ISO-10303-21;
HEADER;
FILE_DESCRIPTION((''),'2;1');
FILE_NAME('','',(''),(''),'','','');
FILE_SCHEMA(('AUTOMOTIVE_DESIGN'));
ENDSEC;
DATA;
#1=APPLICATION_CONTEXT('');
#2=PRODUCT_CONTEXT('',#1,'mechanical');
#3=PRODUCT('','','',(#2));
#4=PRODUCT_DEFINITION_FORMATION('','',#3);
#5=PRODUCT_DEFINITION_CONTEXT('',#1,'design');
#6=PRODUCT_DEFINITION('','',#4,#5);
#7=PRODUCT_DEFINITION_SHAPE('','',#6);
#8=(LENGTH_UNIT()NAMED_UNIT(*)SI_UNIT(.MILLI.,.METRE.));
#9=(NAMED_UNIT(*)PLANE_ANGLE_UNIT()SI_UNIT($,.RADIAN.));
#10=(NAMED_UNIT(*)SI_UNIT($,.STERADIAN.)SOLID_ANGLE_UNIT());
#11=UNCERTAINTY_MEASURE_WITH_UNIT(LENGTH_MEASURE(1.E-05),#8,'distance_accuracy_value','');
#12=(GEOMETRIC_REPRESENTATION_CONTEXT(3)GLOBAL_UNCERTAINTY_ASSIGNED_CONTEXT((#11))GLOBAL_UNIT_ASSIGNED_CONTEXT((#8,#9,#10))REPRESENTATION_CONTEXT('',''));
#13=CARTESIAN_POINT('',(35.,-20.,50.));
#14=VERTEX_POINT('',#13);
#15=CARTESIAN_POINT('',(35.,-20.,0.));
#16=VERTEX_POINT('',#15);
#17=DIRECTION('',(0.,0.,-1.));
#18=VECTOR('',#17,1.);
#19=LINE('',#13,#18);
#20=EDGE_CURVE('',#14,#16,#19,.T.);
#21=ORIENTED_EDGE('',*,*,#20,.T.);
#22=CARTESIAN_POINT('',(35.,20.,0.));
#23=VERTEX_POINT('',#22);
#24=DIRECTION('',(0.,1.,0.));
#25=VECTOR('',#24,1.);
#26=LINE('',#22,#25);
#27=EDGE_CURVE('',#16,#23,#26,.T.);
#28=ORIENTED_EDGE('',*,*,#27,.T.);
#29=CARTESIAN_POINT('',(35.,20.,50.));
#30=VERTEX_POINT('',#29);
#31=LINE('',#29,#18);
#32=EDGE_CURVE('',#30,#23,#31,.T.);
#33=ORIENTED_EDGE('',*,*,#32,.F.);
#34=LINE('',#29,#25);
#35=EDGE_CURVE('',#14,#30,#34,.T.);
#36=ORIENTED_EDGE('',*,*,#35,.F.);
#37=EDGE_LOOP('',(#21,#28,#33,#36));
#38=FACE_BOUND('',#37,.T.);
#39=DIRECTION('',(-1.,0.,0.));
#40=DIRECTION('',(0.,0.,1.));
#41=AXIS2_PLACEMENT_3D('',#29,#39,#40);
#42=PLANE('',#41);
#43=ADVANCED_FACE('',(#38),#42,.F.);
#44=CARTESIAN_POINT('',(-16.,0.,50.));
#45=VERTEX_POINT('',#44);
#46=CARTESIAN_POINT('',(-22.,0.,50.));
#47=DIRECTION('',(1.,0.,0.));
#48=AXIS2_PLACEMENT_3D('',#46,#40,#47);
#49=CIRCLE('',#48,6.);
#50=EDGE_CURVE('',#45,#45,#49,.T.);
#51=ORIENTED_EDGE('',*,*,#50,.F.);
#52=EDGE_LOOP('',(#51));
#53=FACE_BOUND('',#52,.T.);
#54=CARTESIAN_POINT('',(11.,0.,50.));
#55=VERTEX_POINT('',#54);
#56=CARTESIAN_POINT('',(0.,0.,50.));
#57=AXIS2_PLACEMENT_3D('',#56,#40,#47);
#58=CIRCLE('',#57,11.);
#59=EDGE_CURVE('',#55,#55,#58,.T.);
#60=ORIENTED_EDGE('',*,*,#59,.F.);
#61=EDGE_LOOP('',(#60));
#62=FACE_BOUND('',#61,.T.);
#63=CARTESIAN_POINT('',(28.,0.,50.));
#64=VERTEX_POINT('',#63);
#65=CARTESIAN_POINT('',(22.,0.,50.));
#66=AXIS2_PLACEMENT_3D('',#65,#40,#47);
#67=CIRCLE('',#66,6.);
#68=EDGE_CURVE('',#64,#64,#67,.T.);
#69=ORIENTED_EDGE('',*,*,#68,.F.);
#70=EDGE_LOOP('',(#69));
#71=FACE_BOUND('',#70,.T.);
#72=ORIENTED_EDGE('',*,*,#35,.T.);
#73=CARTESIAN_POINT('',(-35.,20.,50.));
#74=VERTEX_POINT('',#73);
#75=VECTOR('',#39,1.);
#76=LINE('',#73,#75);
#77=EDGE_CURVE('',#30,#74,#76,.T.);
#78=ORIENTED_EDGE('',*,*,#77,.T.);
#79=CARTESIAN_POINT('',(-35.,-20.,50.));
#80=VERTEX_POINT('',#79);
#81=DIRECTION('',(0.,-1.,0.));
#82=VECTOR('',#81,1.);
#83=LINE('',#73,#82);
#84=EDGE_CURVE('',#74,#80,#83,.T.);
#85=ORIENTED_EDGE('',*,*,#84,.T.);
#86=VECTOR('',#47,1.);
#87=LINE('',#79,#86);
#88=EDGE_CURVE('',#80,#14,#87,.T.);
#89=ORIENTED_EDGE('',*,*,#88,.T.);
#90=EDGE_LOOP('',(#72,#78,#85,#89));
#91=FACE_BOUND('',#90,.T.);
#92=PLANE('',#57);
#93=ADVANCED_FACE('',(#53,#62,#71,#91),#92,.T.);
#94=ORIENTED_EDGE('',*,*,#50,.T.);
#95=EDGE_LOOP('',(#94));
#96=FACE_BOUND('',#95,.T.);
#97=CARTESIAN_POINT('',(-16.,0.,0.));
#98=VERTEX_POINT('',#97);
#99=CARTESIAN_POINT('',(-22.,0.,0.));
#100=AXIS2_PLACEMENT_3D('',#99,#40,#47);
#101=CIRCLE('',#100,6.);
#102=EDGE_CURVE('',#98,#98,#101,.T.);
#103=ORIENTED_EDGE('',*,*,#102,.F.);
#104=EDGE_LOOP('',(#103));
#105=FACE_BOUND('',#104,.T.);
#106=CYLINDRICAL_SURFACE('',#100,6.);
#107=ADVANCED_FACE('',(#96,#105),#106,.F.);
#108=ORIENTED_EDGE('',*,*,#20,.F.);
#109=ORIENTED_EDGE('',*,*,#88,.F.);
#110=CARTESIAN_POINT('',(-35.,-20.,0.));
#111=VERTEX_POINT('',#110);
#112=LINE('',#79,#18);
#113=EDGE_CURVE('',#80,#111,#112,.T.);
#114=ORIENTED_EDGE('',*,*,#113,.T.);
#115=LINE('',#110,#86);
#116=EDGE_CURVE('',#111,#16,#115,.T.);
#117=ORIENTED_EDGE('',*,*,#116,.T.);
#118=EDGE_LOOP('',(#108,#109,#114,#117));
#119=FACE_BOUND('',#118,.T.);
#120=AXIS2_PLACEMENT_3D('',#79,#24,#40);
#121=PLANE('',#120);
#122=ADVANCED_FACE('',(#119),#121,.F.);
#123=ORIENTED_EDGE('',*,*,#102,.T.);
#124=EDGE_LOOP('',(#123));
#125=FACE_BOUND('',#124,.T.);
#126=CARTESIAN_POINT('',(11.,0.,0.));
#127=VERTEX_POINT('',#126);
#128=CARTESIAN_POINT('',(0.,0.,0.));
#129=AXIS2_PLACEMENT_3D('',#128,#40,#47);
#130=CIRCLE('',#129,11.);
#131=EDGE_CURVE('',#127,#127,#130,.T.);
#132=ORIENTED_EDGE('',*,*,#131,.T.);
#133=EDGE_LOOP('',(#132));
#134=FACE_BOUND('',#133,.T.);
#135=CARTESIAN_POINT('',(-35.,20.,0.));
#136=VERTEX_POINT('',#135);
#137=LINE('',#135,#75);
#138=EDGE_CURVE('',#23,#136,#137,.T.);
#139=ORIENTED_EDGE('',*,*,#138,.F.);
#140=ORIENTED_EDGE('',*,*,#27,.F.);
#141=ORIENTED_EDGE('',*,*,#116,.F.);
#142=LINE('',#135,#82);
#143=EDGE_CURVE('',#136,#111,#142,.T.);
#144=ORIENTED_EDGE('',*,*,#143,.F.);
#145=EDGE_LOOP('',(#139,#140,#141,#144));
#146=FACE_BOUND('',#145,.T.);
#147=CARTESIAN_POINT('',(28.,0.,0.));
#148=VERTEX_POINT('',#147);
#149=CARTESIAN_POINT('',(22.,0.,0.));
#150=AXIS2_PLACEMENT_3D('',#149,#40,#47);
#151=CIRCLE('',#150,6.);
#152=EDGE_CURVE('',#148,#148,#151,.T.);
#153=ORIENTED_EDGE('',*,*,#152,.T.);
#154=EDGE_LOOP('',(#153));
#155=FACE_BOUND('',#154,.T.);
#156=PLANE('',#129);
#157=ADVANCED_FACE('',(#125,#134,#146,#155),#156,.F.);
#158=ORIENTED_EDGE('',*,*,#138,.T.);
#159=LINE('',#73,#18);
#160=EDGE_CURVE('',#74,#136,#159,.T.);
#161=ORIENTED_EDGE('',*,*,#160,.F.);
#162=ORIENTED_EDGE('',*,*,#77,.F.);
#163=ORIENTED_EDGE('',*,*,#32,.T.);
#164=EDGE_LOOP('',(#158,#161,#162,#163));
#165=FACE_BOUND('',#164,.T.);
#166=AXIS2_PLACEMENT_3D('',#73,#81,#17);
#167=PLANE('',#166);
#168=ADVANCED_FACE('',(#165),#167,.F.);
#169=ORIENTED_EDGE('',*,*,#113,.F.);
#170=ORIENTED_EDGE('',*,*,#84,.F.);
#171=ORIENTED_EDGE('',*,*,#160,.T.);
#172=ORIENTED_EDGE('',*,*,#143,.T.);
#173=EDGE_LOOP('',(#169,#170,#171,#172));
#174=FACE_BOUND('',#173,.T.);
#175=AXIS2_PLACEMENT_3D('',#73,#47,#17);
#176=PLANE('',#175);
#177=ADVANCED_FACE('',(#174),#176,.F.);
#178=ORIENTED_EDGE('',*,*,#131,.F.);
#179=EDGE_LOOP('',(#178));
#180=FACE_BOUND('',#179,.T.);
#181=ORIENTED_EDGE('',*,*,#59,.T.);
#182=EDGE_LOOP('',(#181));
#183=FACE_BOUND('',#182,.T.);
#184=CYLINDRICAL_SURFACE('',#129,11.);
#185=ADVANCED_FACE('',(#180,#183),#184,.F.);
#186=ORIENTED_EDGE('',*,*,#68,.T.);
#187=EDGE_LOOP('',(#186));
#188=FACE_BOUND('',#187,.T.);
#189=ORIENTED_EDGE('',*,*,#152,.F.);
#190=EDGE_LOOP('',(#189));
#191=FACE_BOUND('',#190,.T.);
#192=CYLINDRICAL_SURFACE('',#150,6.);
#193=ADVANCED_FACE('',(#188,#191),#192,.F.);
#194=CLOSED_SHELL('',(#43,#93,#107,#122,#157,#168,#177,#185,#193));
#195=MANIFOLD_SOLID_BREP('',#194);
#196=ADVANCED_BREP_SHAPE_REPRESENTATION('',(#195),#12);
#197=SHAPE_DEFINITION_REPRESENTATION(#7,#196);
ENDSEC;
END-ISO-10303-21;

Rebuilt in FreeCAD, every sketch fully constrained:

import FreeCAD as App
import Part
import Sketcher

V = App.Vector

doc = App.newDocument("Part")
params = doc.addObject("Spreadsheet::Sheet", "Params")
for row, (alias, value) in enumerate([
    ("sketch1_width", "70 mm"),
    ("sketch1_height", "40 mm"),
    ("pad1_length", "50 mm"),
    ("sketch2_diameter", "22 mm"),
    ("sketch3_diameter", "12 mm"),
], start=1):
    params.set(f"A{row}", alias)
    params.set(f"B{row}", "=" + value)
    params.setAlias(f"B{row}", alias)

body = doc.addObject("PartDesign::Body", "Body")

sketch1 = body.newObject("Sketcher::SketchObject", "Sketch")
sketch1.AttachmentSupport = (doc.getObject("XY_Plane"), [""])
sketch1.MapMode = "FlatFace"
sketch1.addGeometry(Part.LineSegment(V(-35, 20, 0), V(-35, -20, 0)), False)
sketch1.addGeometry(Part.LineSegment(V(-35, -20, 0), V(35, -20, 0)), False)
sketch1.addGeometry(Part.LineSegment(V(35, -20, 0), V(35, 20, 0)), False)
sketch1.addGeometry(Part.LineSegment(V(35, 20, 0), V(-35, 20, 0)), False)
sketch1.addConstraint(Sketcher.Constraint("Coincident", 0, 2, 1, 1))
sketch1.addConstraint(Sketcher.Constraint("Coincident", 1, 2, 2, 1))
sketch1.addConstraint(Sketcher.Constraint("Coincident", 2, 2, 3, 1))
sketch1.addConstraint(Sketcher.Constraint("Coincident", 3, 2, 0, 1))
sketch1.addConstraint(Sketcher.Constraint("Vertical", 0))
sketch1.addConstraint(Sketcher.Constraint("Horizontal", 1))
sketch1.addConstraint(Sketcher.Constraint("Vertical", 2))
sketch1.addConstraint(Sketcher.Constraint("Horizontal", 3))
sketch1.addConstraint(Sketcher.Constraint("Symmetric", 0, 2, 2, 2, -1, 1))
sketch1.addConstraint(Sketcher.Constraint("DistanceX", 1, 1, 1, 2, 70.0))
sketch1.addConstraint(Sketcher.Constraint("DistanceY", 0, 2, 0, 1, 40.0))
sketch1.setExpression("Constraints[9]", "Params.sketch1_width")
sketch1.setExpression("Constraints[10]", "Params.sketch1_height")
pad1 = body.newObject("PartDesign::Pad", "Pad")
pad1.Profile = sketch1
pad1.setExpression("Length", "Params.pad1_length")

sketch2 = body.newObject("Sketcher::SketchObject", "Sketch001")
sketch2.AttachmentSupport = (doc.getObject("XY_Plane"), [""])
sketch2.MapMode = "FlatFace"
sketch2.AttachmentOffset = App.Placement(V(0, 0, 50), App.Rotation())
sketch2.addGeometry(Part.Circle(V(0, 0, 0), V(0, 0, 1), 11), False)
sketch2.addConstraint(Sketcher.Constraint("Coincident", 0, 3, -1, 1))
sketch2.addConstraint(Sketcher.Constraint("Diameter", 0, 22.0))
sketch2.setExpression("Constraints[1]", "Params.sketch2_diameter")
pocket1 = body.newObject("PartDesign::Pocket", "Pocket")
pocket1.Profile = sketch2
pocket1.Type = "ThroughAll"

sketch3 = body.newObject("Sketcher::SketchObject", "Sketch002")
sketch3.AttachmentSupport = (doc.getObject("XY_Plane"), [""])
sketch3.MapMode = "FlatFace"
sketch3.AttachmentOffset = App.Placement(V(0, 0, 50), App.Rotation())
sketch3.addGeometry(Part.Circle(V(-22, 0, 0), V(0, 0, 1), 6), False)
sketch3.addGeometry(Part.Circle(V(22, 0, 0), V(0, 0, 1), 6), False)
sketch3.addConstraint(Sketcher.Constraint("Equal", 0, 1))
sketch3.addConstraint(Sketcher.Constraint("Symmetric", 0, 3, 1, 3, -1, 1))
sketch3.addConstraint(Sketcher.Constraint("PointOnObject", 0, 3, -1))
sketch3.addConstraint(Sketcher.Constraint("Diameter", 0, 12.0))
sketch3.addConstraint(Sketcher.Constraint("DistanceX", 0, 3, -1, 1, 22.0))
sketch3.setExpression("Constraints[3]", "Params.sketch3_diameter")
pocket2 = body.newObject("PartDesign::Pocket", "Pocket001")
pocket2.Profile = sketch3
pocket2.Type = "ThroughAll"

doc.recompute()
